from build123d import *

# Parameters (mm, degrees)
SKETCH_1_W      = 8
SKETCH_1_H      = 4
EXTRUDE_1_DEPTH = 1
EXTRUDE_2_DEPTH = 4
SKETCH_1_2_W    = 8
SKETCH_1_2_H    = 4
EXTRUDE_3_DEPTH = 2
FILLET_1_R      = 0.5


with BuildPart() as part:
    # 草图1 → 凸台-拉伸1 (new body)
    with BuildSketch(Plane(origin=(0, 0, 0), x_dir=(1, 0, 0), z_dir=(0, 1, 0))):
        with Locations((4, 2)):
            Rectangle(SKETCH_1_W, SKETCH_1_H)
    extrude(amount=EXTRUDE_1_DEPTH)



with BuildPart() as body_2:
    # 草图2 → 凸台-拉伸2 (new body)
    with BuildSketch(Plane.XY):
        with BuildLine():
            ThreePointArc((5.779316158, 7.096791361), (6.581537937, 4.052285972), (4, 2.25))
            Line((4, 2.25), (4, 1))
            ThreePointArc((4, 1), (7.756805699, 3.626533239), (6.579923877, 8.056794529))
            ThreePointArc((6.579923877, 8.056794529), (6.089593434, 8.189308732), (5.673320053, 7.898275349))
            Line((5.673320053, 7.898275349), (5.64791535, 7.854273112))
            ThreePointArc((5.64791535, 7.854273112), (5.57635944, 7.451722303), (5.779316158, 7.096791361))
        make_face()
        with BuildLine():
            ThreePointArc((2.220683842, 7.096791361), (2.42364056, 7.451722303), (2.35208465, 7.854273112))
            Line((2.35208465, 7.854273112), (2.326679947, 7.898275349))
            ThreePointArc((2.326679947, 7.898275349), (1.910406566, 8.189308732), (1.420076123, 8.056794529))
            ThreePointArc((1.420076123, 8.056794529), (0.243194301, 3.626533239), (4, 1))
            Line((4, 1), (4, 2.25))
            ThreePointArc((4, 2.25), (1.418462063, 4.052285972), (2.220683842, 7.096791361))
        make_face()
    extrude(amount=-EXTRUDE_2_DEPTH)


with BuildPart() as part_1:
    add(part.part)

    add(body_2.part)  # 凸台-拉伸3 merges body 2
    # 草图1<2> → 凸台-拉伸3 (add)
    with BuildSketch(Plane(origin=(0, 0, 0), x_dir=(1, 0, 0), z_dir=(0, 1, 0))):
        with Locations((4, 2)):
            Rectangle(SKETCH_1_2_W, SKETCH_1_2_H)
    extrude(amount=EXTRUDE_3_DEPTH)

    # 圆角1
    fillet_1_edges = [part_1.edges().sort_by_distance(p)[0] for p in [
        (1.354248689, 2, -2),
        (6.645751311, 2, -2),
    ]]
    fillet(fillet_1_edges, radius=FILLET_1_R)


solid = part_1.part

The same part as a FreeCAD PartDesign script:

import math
import FreeCAD as App
import Part
import Sketcher
from FreeCAD import Vector
Q = App.Units.Quantity


def edges_at(feature, points):
    """Names of the edges that pass closest to the given points."""
    edges = feature.Shape.Edges
    near = lambda p: min(range(len(edges)), key=lambda i: edges[i].distToShape(Part.Vertex(*p))[0])
    return sorted({f"Edge{near(p) + 1}" for p in points})

doc = App.newDocument("Part")
body = doc.addObject("PartDesign::Body", "Body")

sketch1 = body.newObject("Sketcher::SketchObject", "Sketch")
sketch1.AttachmentSupport = (doc.getObject("XZ_Plane"), [""])
sketch1.MapMode = "FlatFace"
sketch1.addGeometry(Part.LineSegment(Vector(0, -4, 0), Vector(0, 0, 0)), False)
sketch1.addGeometry(Part.LineSegment(Vector(0, 0, 0), Vector(8, 0, 0)), False)
sketch1.addGeometry(Part.LineSegment(Vector(8, 0, 0), Vector(8, -4, 0)), False)
sketch1.addGeometry(Part.LineSegment(Vector(8, -4, 0), Vector(0, -4, 0)), False)
sketch1.addConstraint(Sketcher.Constraint("Coincident", 0, 2, 1, 1))
sketch1.addConstraint(Sketcher.Constraint("Coincident", 1, 2, 2, 1))
sketch1.addConstraint(Sketcher.Constraint("Coincident", 2, 2, 3, 1))
sketch1.addConstraint(Sketcher.Constraint("Coincident", 3, 2, 0, 1))
sketch1.addConstraint(Sketcher.Constraint("Vertical", 0))
sketch1.addConstraint(Sketcher.Constraint("Horizontal", 1))
sketch1.addConstraint(Sketcher.Constraint("Vertical", 2))
sketch1.addConstraint(Sketcher.Constraint("Horizontal", 3))
sketch1.addConstraint(Sketcher.Constraint("Coincident", 0, 2, -1, 1))
sketch1.addConstraint(Sketcher.Constraint("DistanceX", 1, 1, 1, 2, Q("8 mm")))
sketch1.addConstraint(Sketcher.Constraint("DistanceY", 0, 1, 0, 2, Q("4 mm")))
pad1 = body.newObject("PartDesign::Pad", "Pad")
pad1.Profile = sketch1
pad1.Length = 1
pad1.Reversed = True
body2 = doc.addObject("PartDesign::Body", "Body001")

sketch2 = body2.newObject("Sketcher::SketchObject", "Sketch001")
sketch2.AttachmentSupport = (doc.getObject("XY_Plane001"), [""])
sketch2.MapMode = "FlatFace"
sketch2.addGeometry(Part.ArcOfCircle(Part.Circle(Vector(4, 5, 0), Vector(0, 0, 1), 2.75), math.radians(-90), math.radians(50)), False)
sketch2.addGeometry(Part.ArcOfCircle(Part.Circle(Vector(4, 5, 0), Vector(0, 0, 1), 2.75), math.radians(130), math.radians(270)), False)
sketch2.addGeometry(Part.ArcOfCircle(Part.Circle(Vector(1.83, 7.55, 0), Vector(0, 0, 1), 0.6), math.radians(-50), math.radians(30)), False)
sketch2.addGeometry(Part.LineSegment(Vector(2.35, 7.85, 0), Vector(2.33, 7.9, 0)), False)
sketch2.addGeometry(Part.ArcOfCircle(Part.Circle(Vector(1.81, 7.6, 0), Vector(0, 0, 1), 0.6), math.radians(30), math.radians(130)), False)
sketch2.addGeometry(Part.ArcOfCircle(Part.Circle(Vector(4, 5, 0), Vector(0, 0, 1), 4), math.radians(130), math.radians(270)), False)
sketch2.addGeometry(Part.ArcOfCircle(Part.Circle(Vector(4, 5, 0), Vector(0, 0, 1), 4), math.radians(-90), math.radians(50)), False)
sketch2.addGeometry(Part.ArcOfCircle(Part.Circle(Vector(6.19, 7.6, 0), Vector(0, 0, 1), 0.6), math.radians(50), math.radians(150)), False)
sketch2.addGeometry(Part.LineSegment(Vector(5.67, 7.9, 0), Vector(5.65, 7.85, 0)), False)
sketch2.addGeometry(Part.ArcOfCircle(Part.Circle(Vector(6.17, 7.55, 0), Vector(0, 0, 1), 0.6), math.radians(150), math.radians(230)), False)
sketch2.addConstraint(Sketcher.Constraint("Tangent", 0, 1, 1, 2))
sketch2.addConstraint(Sketcher.Constraint("Tangent", 1, 1, 2, 1))
sketch2.addConstraint(Sketcher.Constraint("Tangent", 2, 2, 3, 1))
sketch2.addConstraint(Sketcher.Constraint("Tangent", 3, 2, 4, 1))
sketch2.addConstraint(Sketcher.Constraint("Tangent", 4, 2, 5, 1))
sketch2.addConstraint(Sketcher.Constraint("Tangent", 5, 2, 6, 1))
sketch2.addConstraint(Sketcher.Constraint("Tangent", 6, 2, 7, 1))
sketch2.addConstraint(Sketcher.Constraint("Tangent", 7, 2, 8, 1))
sketch2.addConstraint(Sketcher.Constraint("Tangent", 8, 2, 9, 1))
sketch2.addConstraint(Sketcher.Constraint("Tangent", 9, 2, 0, 2))
sketch2.addConstraint(Sketcher.Constraint("Coincident", 5, 3, 0, 3))
sketch2.addConstraint(Sketcher.Constraint("Equal", 0, 1))
sketch2.addConstraint(Sketcher.Constraint("Equal", 2, 4))
sketch2.addConstraint(Sketcher.Constraint("Equal", 5, 6))
sketch2.addConstraint(Sketcher.Constraint("Equal", 4, 7))
sketch2.addConstraint(Sketcher.Constraint("Equal", 7, 9))
sketch2.addConstraint(Sketcher.Constraint("Horizontal", 4, 3, 7, 3))
sketch2.addConstraint(Sketcher.Constraint("Horizontal", 2, 3, 9, 3))
sketch2.addConstraint(Sketcher.Constraint("Vertical", 6, 3, 0, 1))
sketch2.addConstraint(Sketcher.Constraint("Vertical", 0, 1, 5, 2))
sketch2.addConstraint(Sketcher.Constraint("Radius", 5, Q("4 mm")))
sketch2.addConstraint(Sketcher.Constraint("Radius", 2, Q("0.6 mm")))
sketch2.addConstraint(Sketcher.Constraint("Angle", 3, Q("120 deg")))
sketch2.addConstraint(Sketcher.Constraint("Radius", 0, Q("2.75 mm")))
sketch2.addConstraint(Sketcher.Constraint("DistanceX", -1, 1, 0, 3, Q("4 mm")))
sketch2.addConstraint(Sketcher.Constraint("DistanceY", -1, 1, 0, 3, Q("5 mm")))
sketch2.addConstraint(Sketcher.Constraint("DistanceX", 1, 1, 2, 2, Q("0.131401 mm")))
pad2 = body2.newObject("PartDesign::Pad", "Pad001")
pad2.Profile = sketch2
pad2.Length = 4
pad2.Reversed = True
body.AllowCompound = True
doc.recompute()

boolean = body.newObject("PartDesign::Boolean", "Boolean")
boolean.Type = "Fuse"
boolean.addObjects([body2])

sketch3 = body.newObject("Sketcher::SketchObject", "Sketch002")
sketch3.AttachmentSupport = (doc.getObject("XZ_Plane"), [""])
sketch3.MapMode = "FlatFace"
sketch3.addGeometry(Part.LineSegment(Vector(0, -4, 0), Vector(0, 0, 0)), False)
sketch3.addGeometry(Part.LineSegment(Vector(0, 0, 0), Vector(8, 0, 0)), False)
sketch3.addGeometry(Part.LineSegment(Vector(8, 0, 0), Vector(8, -4, 0)), False)
sketch3.addGeometry(Part.LineSegment(Vector(8, -4, 0), Vector(0, -4, 0)), False)
sketch3.addConstraint(Sketcher.Constraint("Coincident", 0, 2, 1, 1))
sketch3.addConstraint(Sketcher.Constraint("Coincident", 1, 2, 2, 1))
sketch3.addConstraint(Sketcher.Constraint("Coincident", 2, 2, 3, 1))
sketch3.addConstraint(Sketcher.Constraint("Coincident", 3, 2, 0, 1))
sketch3.addConstraint(Sketcher.Constraint("Vertical", 0))
sketch3.addConstraint(Sketcher.Constraint("Horizontal", 1))
sketch3.addConstraint(Sketcher.Constraint("Vertical", 2))
sketch3.addConstraint(Sketcher.Constraint("Horizontal", 3))
sketch3.addConstraint(Sketcher.Constraint("Coincident", 0, 2, -1, 1))
sketch3.addConstraint(Sketcher.Constraint("DistanceX", 1, 1, 1, 2, Q("8 mm")))
sketch3.addConstraint(Sketcher.Constraint("DistanceY", 0, 1, 0, 2, Q("4 mm")))
pad3 = body.newObject("PartDesign::Pad", "Pad002")
pad3.Profile = sketch3
pad3.Length = 2
pad3.Reversed = True
doc.recompute()

fillet = body.newObject("PartDesign::Fillet", "Fillet")
fillet.Base = (pad3, edges_at(pad3, [(1.354, 2, -2), (6.646, 2, -2)]))
fillet.Radius = 0.5

doc.recompute()
